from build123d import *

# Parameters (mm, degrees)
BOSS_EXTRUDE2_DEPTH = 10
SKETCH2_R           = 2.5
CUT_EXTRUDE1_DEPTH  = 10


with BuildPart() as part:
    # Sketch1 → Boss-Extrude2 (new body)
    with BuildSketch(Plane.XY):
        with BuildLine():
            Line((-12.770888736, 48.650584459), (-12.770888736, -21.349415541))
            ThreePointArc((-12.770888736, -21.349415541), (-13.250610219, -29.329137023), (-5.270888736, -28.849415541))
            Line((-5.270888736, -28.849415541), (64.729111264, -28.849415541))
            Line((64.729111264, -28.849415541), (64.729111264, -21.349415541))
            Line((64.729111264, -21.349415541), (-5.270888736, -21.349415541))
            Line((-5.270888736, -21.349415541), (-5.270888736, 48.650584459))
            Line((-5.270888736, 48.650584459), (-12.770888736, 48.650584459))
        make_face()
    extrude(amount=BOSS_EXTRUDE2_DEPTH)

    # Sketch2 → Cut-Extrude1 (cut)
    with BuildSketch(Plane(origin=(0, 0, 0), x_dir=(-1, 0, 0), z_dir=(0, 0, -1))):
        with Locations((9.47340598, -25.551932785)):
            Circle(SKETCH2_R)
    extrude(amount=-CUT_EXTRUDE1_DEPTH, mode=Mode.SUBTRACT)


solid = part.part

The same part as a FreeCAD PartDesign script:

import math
import FreeCAD as App
import Part
import Sketcher
Q = App.Units.Quantity

doc = App.newDocument("Part")
body = doc.addObject("PartDesign::Body", "Body")

# Sketch on XY plane
sketch1 = body.newObject("Sketcher::SketchObject", "Sketch")
sketch1.AttachmentSupport = (doc.getObject("XY_Plane"), [""])
sketch1.MapMode = "FlatFace"
sketch1.addGeometry(Part.LineSegment(App.Vector(-13, 49, 0), App.Vector(-13, -21, 0)), False)
sketch1.addGeometry(Part.ArcOfCircle(Part.Circle(App.Vector(-9, -26, 0), App.Vector(0, 0, 1), 5), math.radians(128), math.radians(322)), False)
sketch1.addGeometry(Part.LineSegment(App.Vector(-5, -29, 0), App.Vector(65, -29, 0)), False)
sketch1.addGeometry(Part.LineSegment(App.Vector(65, -29, 0), App.Vector(65, -21, 0)), False)
sketch1.addGeometry(Part.LineSegment(App.Vector(65, -21, 0), App.Vector(-5, -21, 0)), False)
sketch1.addGeometry(Part.LineSegment(App.Vector(-5, -21, 0), App.Vector(-5, 49, 0)), False)
sketch1.addGeometry(Part.LineSegment(App.Vector(-5, 49, 0), App.Vector(-13, 49, 0)), False)
sketch1.addConstraint(Sketcher.Constraint("Coincident", 0, 2, 1, 1))
sketch1.addConstraint(Sketcher.Constraint("Coincident", 1, 2, 2, 1))
sketch1.addConstraint(Sketcher.Constraint("Coincident", 2, 2, 3, 1))
sketch1.addConstraint(Sketcher.Constraint("Coincident", 3, 2, 4, 1))
sketch1.addConstraint(Sketcher.Constraint("Coincident", 4, 2, 5, 1))
sketch1.addConstraint(Sketcher.Constraint("Coincident", 5, 2, 6, 1))
sketch1.addConstraint(Sketcher.Constraint("Coincident", 6, 2, 0, 1))
sketch1.addConstraint(Sketcher.Constraint("Vertical", 0))
sketch1.addConstraint(Sketcher.Constraint("Horizontal", 2))
sketch1.addConstraint(Sketcher.Constraint("Vertical", 3))
sketch1.addConstraint(Sketcher.Constraint("Horizontal", 4))
sketch1.addConstraint(Sketcher.Constraint("Vertical", 5))
sketch1.addConstraint(Sketcher.Constraint("Horizontal", 6))
sketch1.addConstraint(Sketcher.Constraint("Horizontal", 0, 2, 3, 2))
sketch1.addConstraint(Sketcher.Constraint("Vertical", 1, 2, 4, 2))
sketch1.addConstraint(Sketcher.Constraint("Equal", 4, 0))
sketch1.addConstraint(Sketcher.Constraint("Equal", 6, 3))
sketch1.addConstraint(Sketcher.Constraint("DistanceX", 2, 1, 2, 2, Q("70 mm")))
sketch1.addConstraint(Sketcher.Constraint("DistanceX", 6, 2, 6, 1, Q("7.5 mm")))
sketch1.addConstraint(Sketcher.Constraint("Radius", 1, Q("5.341773 mm")))
sketch1.addConstraint(Sketcher.Constraint("DistanceX", 0, 2, -1, 1, Q("12.770889 mm")))
sketch1.addConstraint(Sketcher.Constraint("DistanceY", 1, 3, -1, 1, Q("25.551933 mm")))
pad1 = body.newObject("PartDesign::Pad", "Pad")
pad1.Profile = sketch1
pad1.Length = 10

# Sketch on XY plane
sketch2 = body.newObject("Sketcher::SketchObject", "Sketch001")
sketch2.AttachmentSupport = (doc.getObject("XY_Plane"), [""])
sketch2.MapMode = "FlatFace"
sketch2.addGeometry(Part.Circle(App.Vector(-9.5, -25.6, 0), App.Vector(0, 0, 1), 2.5), False)
sketch2.addConstraint(Sketcher.Constraint("Diameter", 0, Q("5 mm")))
sketch2.addConstraint(Sketcher.Constraint("DistanceX", 0, 3, -1, 1, Q("9.473406 mm")))
sketch2.addConstraint(Sketcher.Constraint("DistanceY", 0, 3, -1, 1, Q("25.551933 mm")))
pocket1 = body.newObject("PartDesign::Pocket", "Pocket")
pocket1.Profile = sketch2
pocket1.Length = 10
pocket1.Reversed = True

doc.recompute()
